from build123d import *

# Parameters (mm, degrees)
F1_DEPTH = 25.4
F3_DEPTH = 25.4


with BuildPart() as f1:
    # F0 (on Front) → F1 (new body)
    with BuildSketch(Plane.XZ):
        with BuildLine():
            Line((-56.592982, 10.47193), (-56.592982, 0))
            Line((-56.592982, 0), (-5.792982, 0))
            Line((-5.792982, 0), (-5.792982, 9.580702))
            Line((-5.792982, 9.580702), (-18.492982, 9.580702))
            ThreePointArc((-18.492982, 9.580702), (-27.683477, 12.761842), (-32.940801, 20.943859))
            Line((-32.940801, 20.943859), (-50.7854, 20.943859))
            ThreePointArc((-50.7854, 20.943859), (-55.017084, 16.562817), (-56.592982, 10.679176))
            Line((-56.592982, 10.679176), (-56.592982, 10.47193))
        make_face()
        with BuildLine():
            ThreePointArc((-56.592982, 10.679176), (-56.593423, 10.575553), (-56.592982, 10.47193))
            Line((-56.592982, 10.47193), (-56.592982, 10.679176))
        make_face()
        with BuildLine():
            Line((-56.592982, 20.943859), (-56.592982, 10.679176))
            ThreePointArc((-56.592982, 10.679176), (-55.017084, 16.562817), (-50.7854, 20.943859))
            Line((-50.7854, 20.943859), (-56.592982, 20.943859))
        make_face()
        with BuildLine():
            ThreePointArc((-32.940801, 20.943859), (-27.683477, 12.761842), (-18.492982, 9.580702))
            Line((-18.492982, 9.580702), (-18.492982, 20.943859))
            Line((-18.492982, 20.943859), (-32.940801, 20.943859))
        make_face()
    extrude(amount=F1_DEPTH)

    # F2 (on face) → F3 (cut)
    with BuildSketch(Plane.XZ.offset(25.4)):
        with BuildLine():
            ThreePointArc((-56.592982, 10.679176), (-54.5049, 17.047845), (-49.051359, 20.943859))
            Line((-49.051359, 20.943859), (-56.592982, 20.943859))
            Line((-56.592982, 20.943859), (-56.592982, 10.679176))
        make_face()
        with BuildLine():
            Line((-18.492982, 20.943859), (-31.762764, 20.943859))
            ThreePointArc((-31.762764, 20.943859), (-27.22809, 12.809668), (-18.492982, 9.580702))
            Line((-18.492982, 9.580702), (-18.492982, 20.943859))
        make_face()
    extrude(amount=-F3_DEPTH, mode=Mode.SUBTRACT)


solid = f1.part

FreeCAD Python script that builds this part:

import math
import FreeCAD as App
import Part
import Sketcher
Q = App.Units.Quantity

doc = App.newDocument("Part")
body = doc.addObject("PartDesign::Body", "Body")

# Sketch on XZ plane
sketch1 = doc.addObject("Sketcher::SketchObject", "Sketch")
body.addObject(sketch1)
sketch1.AttachmentSupport = (doc.XZ_Plane, [""])
sketch1.MapMode = "FlatFace"
sketch1.addGeometry(Part.LineSegment(App.Vector(-56.59, 0, 0), App.Vector(-5.79, 0, 0)), False)
sketch1.addGeometry(Part.LineSegment(App.Vector(-5.79, 0, 0), App.Vector(-5.79, 9.58, 0)), False)
sketch1.addGeometry(Part.LineSegment(App.Vector(-5.79, 9.58, 0), App.Vector(-18.49, 9.58, 0)), False)
sketch1.addGeometry(Part.LineSegment(App.Vector(-18.49, 9.58, 0), App.Vector(-18.49, 20.94, 0)), False)
sketch1.addGeometry(Part.LineSegment(App.Vector(-18.49, 20.94, 0), App.Vector(-56.59, 20.94, 0)), False)
sketch1.addGeometry(Part.LineSegment(App.Vector(-56.59, 20.94, 0), App.Vector(-56.59, 10.68, 0)), False)
sketch1.addGeometry(Part.ArcOfCircle(Part.Circle(App.Vector(-44.42, 10.58, 0), App.Vector(0, 0, 1), 12.17), math.radians(179.51), math.radians(180.49)), False)
sketch1.addGeometry(Part.LineSegment(App.Vector(-56.59, 10.47, 0), App.Vector(-56.59, 0, 0)), False)
sketch1.addConstraint(Sketcher.Constraint("Coincident", 0, 2, 1, 1))
sketch1.addConstraint(Sketcher.Constraint("Coincident", 1, 2, 2, 1))
sketch1.addConstraint(Sketcher.Constraint("Coincident", 2, 2, 3, 1))
sketch1.addConstraint(Sketcher.Constraint("Coincident", 3, 2, 4, 1))
sketch1.addConstraint(Sketcher.Constraint("Coincident", 4, 2, 5, 1))
sketch1.addConstraint(Sketcher.Constraint("Coincident", 5, 2, 6, 1))
sketch1.addConstraint(Sketcher.Constraint("Coincident", 6, 2, 7, 1))
sketch1.addConstraint(Sketcher.Constraint("Coincident", 7, 2, 0, 1))
sketch1.addConstraint(Sketcher.Constraint("Horizontal", 0))
sketch1.addConstraint(Sketcher.Constraint("Vertical", 1))
sketch1.addConstraint(Sketcher.Constraint("Horizontal", 2))
sketch1.addConstraint(Sketcher.Constraint("Vertical", 3))
sketch1.addConstraint(Sketcher.Constraint("Horizontal", 4))
sketch1.addConstraint(Sketcher.Constraint("Vertical", 5))
sketch1.addConstraint(Sketcher.Constraint("Vertical", 7))
sketch1.addConstraint(Sketcher.Constraint("PointOnObject", 0, 2, -1))
sketch1.addConstraint(Sketcher.Constraint("Vertical", 5, 2, 6, 2))
sketch1.addConstraint(Sketcher.Constraint("DistanceX", 0, 1, 0, 2, Q("2 in")))
sketch1.addConstraint(Sketcher.Constraint("DistanceX", 2, 2, 2, 1, Q("0.5 in")))
sketch1.addConstraint(Sketcher.Constraint("Radius", 6, 12.174513))
sketch1.addConstraint(Sketcher.Constraint("DistanceY", 7, 2, 7, 1, 10.47193))
sketch1.addConstraint(Sketcher.Constraint("DistanceY", 1, 1, 1, 2, 9.580702))
sketch1.addConstraint(Sketcher.Constraint("DistanceY", 3, 1, 3, 2, 11.363157))
sketch1.addConstraint(Sketcher.Constraint("DistanceY", 5, 2, 5, 1, 10.264683))
sketch1.addConstraint(Sketcher.Constraint("DistanceX", 6, 3, -1, 1, 44.41891))
pad1 = doc.addObject("PartDesign::Pad", "Pad")
body.addObject(pad1)
pad1.Profile = sketch1
pad1.Length = Q("1 in")

# Sketch on XZ plane
sketch2 = doc.addObject("Sketcher::SketchObject", "Sketch001")
body.addObject(sketch2)
sketch2.AttachmentSupport = (doc.XZ_Plane, [""])
sketch2.MapMode = "FlatFace"
sketch2.AttachmentOffset = App.Placement(App.Vector(0, 0, 1 * 25.4), App.Rotation())
sketch2.addGeometry(Part.ArcOfCircle(Part.Circle(App.Vector(-46, 11, 0), App.Vector(0, 0, 1), 11), math.radians(107), math.radians(180)), False)
sketch2.addGeometry(Part.LineSegment(App.Vector(-49, 21, 0), App.Vector(-57, 21, 0)), False)
sketch2.addGeometry(Part.LineSegment(App.Vector(-57, 21, 0), App.Vector(-57, 11, 0)), False)
sketch2.addGeometry(Part.LineSegment(App.Vector(-18, 21, 0), App.Vector(-32, 21, 0)), False)
sketch2.addGeometry(Part.ArcOfCircle(Part.Circle(App.Vector(-18, 23, 0), App.Vector(0, 0, 1), 13), math.radians(-171), math.radians(-90)), False)
sketch2.addGeometry(Part.LineSegment(App.Vector(-18, 10, 0), App.Vector(-18, 21, 0)), False)
sketch2.addConstraint(Sketcher.Constraint("Coincident", 0, 1, 1, 1))
sketch2.addConstraint(Sketcher.Constraint("Coincident", 1, 2, 2, 1))
sketch2.addConstraint(Sketcher.Constraint("Tangent", 2, 2, 0, 2))
sketch2.addConstraint(Sketcher.Constraint("Coincident", 3, 2, 4, 1))
sketch2.addConstraint(Sketcher.Constraint("Coincident", 4, 2, 5, 1))
sketch2.addConstraint(Sketcher.Constraint("Coincident", 5, 2, 3, 1))
sketch2.addConstraint(Sketcher.Constraint("Horizontal", 1))
sketch2.addConstraint(Sketcher.Constraint("Vertical", 2))
sketch2.addConstraint(Sketcher.Constraint("Horizontal", 3))
sketch2.addConstraint(Sketcher.Constraint("Vertical", 5))
sketch2.addConstraint(Sketcher.Constraint("Horizontal", 1, 2, 3, 2))
sketch2.addConstraint(Sketcher.Constraint("DistanceX", 1, 2, 4, 3, Q("1.5 in")))
sketch2.addConstraint(Sketcher.Constraint("DistanceX", 2, 2, 4, 2, Q("1.5 in")))
sketch2.addConstraint(Sketcher.Constraint("Radius", 4, 13.429739))
sketch2.addConstraint(Sketcher.Constraint("Radius", 0, 10.756293))
sketch2.addConstraint(Sketcher.Constraint("DistanceX", 3, 2, 3, 1, 13.269782))
sketch2.addConstraint(Sketcher.Constraint("DistanceX", 1, 2, 1, 1, 7.541623))
sketch2.addConstraint(Sketcher.Constraint("DistanceX", 0, 3, -1, 1, 45.836689))
sketch2.addConstraint(Sketcher.Constraint("DistanceY", -1, 1, 4, 3, 23.010441))
pocket1 = doc.addObject("PartDesign::Pocket", "Pocket")
body.addObject(pocket1)
pocket1.Profile = sketch2
pocket1.Length = Q("1 in")

doc.recompute()
